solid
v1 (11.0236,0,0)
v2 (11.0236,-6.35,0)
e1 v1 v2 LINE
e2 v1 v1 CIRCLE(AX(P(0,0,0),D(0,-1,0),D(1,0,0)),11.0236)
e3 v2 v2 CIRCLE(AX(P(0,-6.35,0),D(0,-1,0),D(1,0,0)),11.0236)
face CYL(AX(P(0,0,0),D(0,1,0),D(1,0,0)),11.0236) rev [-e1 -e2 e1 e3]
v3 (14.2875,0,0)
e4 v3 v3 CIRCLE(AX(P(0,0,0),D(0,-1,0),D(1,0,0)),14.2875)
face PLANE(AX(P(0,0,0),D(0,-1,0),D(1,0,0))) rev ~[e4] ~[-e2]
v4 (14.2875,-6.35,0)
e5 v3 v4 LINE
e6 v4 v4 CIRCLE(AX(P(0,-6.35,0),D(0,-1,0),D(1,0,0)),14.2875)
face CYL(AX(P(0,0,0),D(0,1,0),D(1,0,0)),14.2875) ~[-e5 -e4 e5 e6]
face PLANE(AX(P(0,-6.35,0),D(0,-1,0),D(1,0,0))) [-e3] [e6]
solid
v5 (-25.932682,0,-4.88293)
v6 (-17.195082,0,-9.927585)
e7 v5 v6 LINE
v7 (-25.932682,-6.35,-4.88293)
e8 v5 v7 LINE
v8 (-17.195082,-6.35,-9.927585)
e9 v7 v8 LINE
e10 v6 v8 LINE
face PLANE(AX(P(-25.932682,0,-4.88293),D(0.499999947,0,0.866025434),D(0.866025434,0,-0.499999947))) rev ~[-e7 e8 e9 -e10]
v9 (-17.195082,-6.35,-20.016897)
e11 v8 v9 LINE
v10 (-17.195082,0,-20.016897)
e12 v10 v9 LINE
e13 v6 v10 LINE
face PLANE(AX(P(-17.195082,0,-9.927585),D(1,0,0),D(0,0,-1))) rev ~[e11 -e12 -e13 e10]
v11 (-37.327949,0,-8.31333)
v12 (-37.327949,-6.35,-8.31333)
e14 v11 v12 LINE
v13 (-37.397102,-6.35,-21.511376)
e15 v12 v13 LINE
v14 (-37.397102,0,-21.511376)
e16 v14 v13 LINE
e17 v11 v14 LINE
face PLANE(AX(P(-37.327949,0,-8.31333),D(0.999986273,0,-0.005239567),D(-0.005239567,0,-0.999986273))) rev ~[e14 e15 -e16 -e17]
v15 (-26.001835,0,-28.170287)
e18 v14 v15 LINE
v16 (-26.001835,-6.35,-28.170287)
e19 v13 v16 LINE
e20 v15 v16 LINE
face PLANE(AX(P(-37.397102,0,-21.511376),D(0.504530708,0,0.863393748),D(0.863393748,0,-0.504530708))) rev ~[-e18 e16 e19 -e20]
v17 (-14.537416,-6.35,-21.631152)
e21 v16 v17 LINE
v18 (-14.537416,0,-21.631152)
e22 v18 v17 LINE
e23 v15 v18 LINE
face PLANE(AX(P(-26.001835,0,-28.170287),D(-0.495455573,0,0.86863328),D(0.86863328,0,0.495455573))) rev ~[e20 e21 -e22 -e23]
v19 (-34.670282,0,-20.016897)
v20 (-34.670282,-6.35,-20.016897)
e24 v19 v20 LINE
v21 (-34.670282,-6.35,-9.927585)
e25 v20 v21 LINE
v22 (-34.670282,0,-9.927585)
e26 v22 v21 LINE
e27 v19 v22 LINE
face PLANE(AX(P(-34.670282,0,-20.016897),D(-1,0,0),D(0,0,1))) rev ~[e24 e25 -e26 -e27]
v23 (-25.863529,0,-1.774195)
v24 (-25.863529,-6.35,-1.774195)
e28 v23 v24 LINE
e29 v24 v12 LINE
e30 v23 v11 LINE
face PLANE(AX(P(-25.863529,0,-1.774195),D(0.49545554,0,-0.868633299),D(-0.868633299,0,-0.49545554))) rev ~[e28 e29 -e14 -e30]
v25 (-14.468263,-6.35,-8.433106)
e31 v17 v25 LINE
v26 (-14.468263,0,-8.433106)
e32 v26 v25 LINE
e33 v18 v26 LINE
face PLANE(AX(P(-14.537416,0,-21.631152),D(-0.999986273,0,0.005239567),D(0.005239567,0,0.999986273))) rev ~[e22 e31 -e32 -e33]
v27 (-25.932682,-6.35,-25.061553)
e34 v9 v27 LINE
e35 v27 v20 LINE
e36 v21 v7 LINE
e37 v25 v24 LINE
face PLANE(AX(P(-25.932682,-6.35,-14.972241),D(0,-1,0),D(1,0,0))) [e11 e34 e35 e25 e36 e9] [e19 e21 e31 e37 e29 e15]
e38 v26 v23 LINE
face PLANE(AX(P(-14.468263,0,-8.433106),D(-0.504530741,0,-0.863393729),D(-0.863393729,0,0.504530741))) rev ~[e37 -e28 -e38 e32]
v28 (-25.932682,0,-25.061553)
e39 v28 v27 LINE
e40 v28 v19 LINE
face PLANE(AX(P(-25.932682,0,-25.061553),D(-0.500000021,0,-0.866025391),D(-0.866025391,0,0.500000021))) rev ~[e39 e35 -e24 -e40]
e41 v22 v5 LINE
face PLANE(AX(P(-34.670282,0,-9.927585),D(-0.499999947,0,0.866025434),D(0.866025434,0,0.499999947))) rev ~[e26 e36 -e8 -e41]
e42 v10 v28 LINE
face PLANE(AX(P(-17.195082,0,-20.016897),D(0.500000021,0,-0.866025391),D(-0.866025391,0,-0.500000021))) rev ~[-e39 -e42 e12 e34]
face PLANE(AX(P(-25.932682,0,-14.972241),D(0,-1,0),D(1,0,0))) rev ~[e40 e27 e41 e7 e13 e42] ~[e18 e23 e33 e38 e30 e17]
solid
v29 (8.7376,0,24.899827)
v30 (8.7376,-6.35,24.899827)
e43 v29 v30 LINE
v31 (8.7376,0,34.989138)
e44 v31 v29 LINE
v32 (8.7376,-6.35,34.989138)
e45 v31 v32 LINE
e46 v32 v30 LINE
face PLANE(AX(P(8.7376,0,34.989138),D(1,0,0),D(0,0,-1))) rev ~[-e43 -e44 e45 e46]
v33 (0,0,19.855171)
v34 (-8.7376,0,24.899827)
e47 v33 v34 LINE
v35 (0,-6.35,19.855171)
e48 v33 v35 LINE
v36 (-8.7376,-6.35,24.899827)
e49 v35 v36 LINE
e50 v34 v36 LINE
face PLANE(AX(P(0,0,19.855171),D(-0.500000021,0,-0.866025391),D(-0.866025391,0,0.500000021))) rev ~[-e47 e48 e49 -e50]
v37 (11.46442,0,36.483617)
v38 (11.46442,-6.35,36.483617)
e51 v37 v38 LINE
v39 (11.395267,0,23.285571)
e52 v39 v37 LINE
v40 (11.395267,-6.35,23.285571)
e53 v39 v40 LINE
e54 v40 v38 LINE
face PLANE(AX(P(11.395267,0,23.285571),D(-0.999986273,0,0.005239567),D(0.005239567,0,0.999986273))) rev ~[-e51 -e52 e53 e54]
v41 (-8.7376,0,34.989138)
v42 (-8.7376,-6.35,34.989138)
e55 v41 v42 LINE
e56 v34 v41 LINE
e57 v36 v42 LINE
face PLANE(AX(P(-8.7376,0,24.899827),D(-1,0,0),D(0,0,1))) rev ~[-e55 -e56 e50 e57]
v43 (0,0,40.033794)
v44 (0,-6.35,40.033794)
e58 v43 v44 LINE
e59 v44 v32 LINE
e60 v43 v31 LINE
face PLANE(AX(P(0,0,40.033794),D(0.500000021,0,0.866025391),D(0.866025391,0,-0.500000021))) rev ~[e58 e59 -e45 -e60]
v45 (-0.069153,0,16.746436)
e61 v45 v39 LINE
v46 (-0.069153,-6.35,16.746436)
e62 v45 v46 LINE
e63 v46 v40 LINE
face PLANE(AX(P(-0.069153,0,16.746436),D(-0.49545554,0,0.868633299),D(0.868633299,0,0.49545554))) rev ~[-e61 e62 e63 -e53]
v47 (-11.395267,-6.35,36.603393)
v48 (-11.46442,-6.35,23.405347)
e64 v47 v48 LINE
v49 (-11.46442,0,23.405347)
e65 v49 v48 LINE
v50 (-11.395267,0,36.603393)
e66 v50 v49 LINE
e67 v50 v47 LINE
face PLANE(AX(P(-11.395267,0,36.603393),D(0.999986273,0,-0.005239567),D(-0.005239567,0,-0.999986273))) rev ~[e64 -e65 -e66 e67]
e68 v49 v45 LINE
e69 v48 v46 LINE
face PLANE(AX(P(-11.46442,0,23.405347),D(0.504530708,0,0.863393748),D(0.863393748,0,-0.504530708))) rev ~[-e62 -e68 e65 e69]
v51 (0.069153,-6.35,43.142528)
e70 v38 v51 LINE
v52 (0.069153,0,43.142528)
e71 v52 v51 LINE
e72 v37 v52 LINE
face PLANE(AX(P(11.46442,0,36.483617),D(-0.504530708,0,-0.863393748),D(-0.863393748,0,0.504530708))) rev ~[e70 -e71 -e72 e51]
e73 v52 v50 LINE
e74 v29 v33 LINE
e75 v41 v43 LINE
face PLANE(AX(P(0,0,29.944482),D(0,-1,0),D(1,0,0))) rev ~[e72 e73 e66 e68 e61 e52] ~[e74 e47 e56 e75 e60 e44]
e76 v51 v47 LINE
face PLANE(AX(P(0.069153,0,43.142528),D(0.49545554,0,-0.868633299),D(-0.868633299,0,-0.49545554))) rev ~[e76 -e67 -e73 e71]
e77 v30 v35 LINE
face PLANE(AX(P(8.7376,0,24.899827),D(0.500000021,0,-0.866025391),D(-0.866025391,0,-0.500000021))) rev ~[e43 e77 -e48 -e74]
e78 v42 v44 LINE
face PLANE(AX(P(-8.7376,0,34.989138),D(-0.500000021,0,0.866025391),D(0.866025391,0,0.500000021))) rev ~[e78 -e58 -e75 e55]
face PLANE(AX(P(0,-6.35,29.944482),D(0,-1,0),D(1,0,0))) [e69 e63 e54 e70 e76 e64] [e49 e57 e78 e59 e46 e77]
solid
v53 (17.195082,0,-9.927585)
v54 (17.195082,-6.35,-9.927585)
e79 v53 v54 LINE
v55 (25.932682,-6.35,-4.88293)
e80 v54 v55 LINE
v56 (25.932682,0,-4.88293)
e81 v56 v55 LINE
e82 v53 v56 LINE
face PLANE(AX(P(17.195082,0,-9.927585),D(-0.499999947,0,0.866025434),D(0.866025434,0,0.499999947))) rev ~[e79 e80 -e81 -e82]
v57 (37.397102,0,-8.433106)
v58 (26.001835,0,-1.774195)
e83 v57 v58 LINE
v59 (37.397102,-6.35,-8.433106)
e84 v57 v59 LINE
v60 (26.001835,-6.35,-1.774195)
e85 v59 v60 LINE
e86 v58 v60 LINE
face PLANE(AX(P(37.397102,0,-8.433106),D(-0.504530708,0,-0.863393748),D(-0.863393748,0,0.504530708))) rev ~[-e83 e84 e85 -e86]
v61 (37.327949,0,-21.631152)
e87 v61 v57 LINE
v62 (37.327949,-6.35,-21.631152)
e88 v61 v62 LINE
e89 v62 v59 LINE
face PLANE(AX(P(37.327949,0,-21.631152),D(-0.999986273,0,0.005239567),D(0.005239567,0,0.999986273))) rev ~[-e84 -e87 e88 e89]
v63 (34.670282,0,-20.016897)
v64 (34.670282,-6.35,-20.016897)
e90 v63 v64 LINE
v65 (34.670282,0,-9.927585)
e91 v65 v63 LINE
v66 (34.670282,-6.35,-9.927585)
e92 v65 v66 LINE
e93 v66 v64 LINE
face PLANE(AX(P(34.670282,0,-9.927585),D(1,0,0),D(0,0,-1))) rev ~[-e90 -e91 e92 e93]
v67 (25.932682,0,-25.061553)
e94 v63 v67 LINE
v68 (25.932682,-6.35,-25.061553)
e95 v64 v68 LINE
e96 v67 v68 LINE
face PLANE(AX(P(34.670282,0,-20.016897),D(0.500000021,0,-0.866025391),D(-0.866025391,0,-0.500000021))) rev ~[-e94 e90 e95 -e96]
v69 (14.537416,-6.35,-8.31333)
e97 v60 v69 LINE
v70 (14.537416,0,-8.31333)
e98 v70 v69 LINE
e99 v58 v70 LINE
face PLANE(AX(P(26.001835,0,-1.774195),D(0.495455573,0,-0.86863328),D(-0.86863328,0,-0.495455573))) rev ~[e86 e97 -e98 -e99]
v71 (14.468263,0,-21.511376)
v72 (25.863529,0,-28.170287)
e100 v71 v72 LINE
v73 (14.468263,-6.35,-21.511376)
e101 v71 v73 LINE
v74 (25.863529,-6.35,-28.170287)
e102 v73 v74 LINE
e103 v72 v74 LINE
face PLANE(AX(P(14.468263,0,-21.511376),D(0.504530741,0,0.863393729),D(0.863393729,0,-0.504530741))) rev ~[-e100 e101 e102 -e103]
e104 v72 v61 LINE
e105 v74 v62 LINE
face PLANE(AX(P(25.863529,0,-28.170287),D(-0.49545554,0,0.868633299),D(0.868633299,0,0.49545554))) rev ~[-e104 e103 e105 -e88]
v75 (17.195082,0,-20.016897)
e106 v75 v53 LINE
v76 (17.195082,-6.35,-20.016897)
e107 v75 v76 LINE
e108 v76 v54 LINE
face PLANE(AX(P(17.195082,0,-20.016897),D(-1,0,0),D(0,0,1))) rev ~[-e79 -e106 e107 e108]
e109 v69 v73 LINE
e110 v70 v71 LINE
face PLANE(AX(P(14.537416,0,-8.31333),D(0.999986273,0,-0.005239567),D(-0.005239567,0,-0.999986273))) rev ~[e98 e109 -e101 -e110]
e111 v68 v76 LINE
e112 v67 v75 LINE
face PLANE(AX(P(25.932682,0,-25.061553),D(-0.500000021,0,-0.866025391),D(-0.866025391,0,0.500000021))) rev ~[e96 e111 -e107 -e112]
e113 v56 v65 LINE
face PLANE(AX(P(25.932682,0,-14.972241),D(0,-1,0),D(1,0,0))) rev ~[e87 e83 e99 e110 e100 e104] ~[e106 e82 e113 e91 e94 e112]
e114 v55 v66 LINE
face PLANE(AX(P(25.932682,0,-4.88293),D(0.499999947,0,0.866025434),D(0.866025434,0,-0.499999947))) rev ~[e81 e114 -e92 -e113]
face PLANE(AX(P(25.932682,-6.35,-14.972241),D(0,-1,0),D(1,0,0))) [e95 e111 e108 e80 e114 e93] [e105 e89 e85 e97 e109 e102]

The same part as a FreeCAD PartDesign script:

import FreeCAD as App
import Part
import Sketcher
Q = App.Units.Quantity


def add_polygon(sketch, points):
    """Adds a closed chain of lines whose ends are joined by coincident constraints."""
    first, n = sketch.GeometryCount, len(points)
    for a, b in zip(points, points[1:] + points[:1]):
        sketch.addGeometry(Part.LineSegment(App.Vector(*a, 0), App.Vector(*b, 0)), False)
    for i in range(n):
        sketch.addConstraint(Sketcher.Constraint("Coincident", first + i, 2, first + (i + 1) % n, 1))

doc = App.newDocument("Part")
body = doc.addObject("PartDesign::Body", "Body")
body.AllowCompound = True

# Sketch on XZ plane
sketch1 = body.newObject("Sketcher::SketchObject", "Sketch")
sketch1.AttachmentSupport = (doc.getObject("XZ_Plane"), [""])
sketch1.MapMode = "FlatFace"
add_polygon(sketch1, [(0.069153, 43.142528), (-11.395267, 36.603393), (-11.46442, 23.405347), (-0.069153, 16.746436), (11.395267, 23.285571), (11.46442, 36.483617)])  # lines 0-5
add_polygon(sketch1, [(8.7376, 24.899827), (0, 19.855171), (-8.7376, 24.899827), (-8.7376, 34.989138), (0, 40.033794), (8.7376, 34.989138)])  # lines 6-11
add_polygon(sketch1, [(25.863529, -28.170287), (37.327949, -21.631152), (37.397102, -8.433106), (26.001835, -1.774195), (14.537416, -8.31333), (14.468263, -21.511376)])  # lines 12-17
add_polygon(sketch1, [(25.932682, -25.061553), (17.195082, -20.016897), (17.195082, -9.927585), (25.932682, -4.88293), (34.670282, -9.927585), (34.670282, -20.016897)])  # lines 18-23
add_polygon(sketch1, [(-37.327949, -8.31333), (-37.397102, -21.511376), (-26.001835, -28.170287), (-14.537416, -21.631152), (-14.468263, -8.433106), (-25.863529, -1.774195)])  # lines 24-29
add_polygon(sketch1, [(-34.670282, -9.927585), (-25.932682, -4.88293), (-17.195082, -9.927585), (-17.195082, -20.016897), (-25.932682, -25.061553), (-34.670282, -20.016897)])  # lines 30-35
sketch1.addGeometry(Part.Circle(App.Vector(0, 0, 0), App.Vector(0, 0, 1), 14.2875), False)  # 36
sketch1.addGeometry(Part.Circle(App.Vector(0, 0, 0), App.Vector(0, 0, 1), 11.0236), False)  # 37
sketch1.addConstraint(Sketcher.Constraint("Vertical", 8))
sketch1.addConstraint(Sketcher.Constraint("Vertical", 11))
sketch1.addConstraint(Sketcher.Constraint("Vertical", 19))
sketch1.addConstraint(Sketcher.Constraint("Vertical", 22))
sketch1.addConstraint(Sketcher.Constraint("Vertical", 32))
sketch1.addConstraint(Sketcher.Constraint("Vertical", 35))
sketch1.addConstraint(Sketcher.Constraint("Coincident", 36, 3, -1, 1))
sketch1.addConstraint(Sketcher.Constraint("Coincident", 37, 3, -1, 1))
sketch1.addConstraint(Sketcher.Constraint("Symmetric", 8, 2, 10, 2, -2))
sketch1.addConstraint(Sketcher.Constraint("Symmetric", 20, 2, 30, 2, -2))
sketch1.addConstraint(Sketcher.Constraint("Symmetric", 19, 2, 31, 2, -2))
sketch1.addConstraint(Sketcher.Constraint("Symmetric", 23, 2, 33, 2, -2))
sketch1.addConstraint(Sketcher.Constraint("Symmetric", 22, 2, 34, 2, -2))
sketch1.addConstraint(Sketcher.Constraint("PointOnObject", 6, 2, -2))
sketch1.addConstraint(Sketcher.Constraint("PointOnObject", 9, 2, -2))
sketch1.addConstraint(Sketcher.Constraint("Parallel", 0, 3))
sketch1.addConstraint(Sketcher.Constraint("Parallel", 1, 4))
sketch1.addConstraint(Sketcher.Constraint("Parallel", 2, 5))
sketch1.addConstraint(Sketcher.Constraint("Parallel", 6, 9))
sketch1.addConstraint(Sketcher.Constraint("Parallel", 7, 10))
sketch1.addConstraint(Sketcher.Constraint("Parallel", 3, 12))
sketch1.addConstraint(Sketcher.Constraint("Parallel", 4, 13))
sketch1.addConstraint(Sketcher.Constraint("Parallel", 5, 14))
sketch1.addConstraint(Sketcher.Constraint("Parallel", 12, 15))
sketch1.addConstraint(Sketcher.Constraint("Parallel", 13, 16))
sketch1.addConstraint(Sketcher.Constraint("Parallel", 14, 17))
sketch1.addConstraint(Sketcher.Constraint("Parallel", 10, 18))
sketch1.addConstraint(Sketcher.Constraint("Parallel", 9, 20))
sketch1.addConstraint(Sketcher.Constraint("Parallel", 18, 21))
sketch1.addConstraint(Sketcher.Constraint("Parallel", 20, 23))
sketch1.addConstraint(Sketcher.Constraint("Parallel", 16, 24))
sketch1.addConstraint(Sketcher.Constraint("Parallel", 17, 25))
sketch1.addConstraint(Sketcher.Constraint("Parallel", 15, 26))
sketch1.addConstraint(Sketcher.Constraint("Parallel", 24, 27))
sketch1.addConstraint(Sketcher.Constraint("Parallel", 25, 28))
sketch1.addConstraint(Sketcher.Constraint("Parallel", 26, 29))
sketch1.addConstraint(Sketcher.Constraint("Parallel", 23, 30))
sketch1.addConstraint(Sketcher.Constraint("Parallel", 30, 33))
sketch1.addConstraint(Sketcher.Constraint("Horizontal", 19, 2, 21, 2))
sketch1.addConstraint(Sketcher.Constraint("Horizontal", 18, 2, 22, 2))
sketch1.addConstraint(Sketcher.Constraint("Horizontal", 16, 2, 24, 2))
sketch1.addConstraint(Sketcher.Constraint("Horizontal", 17, 2, 25, 2))
sketch1.addConstraint(Sketcher.Constraint("Horizontal", 12, 2, 26, 2))
sketch1.addConstraint(Sketcher.Constraint("Horizontal", 13, 2, 27, 2))
sketch1.addConstraint(Sketcher.Constraint("Horizontal", 14, 2, 28, 2))
sketch1.addConstraint(Sketcher.Constraint("Equal", 11, 19))
sketch1.addConstraint(Sketcher.Constraint("Equal", 0, 1))
sketch1.addConstraint(Sketcher.Constraint("Equal", 1, 2))
sketch1.addConstraint(Sketcher.Constraint("Equal", 2, 3))
sketch1.addConstraint(Sketcher.Constraint("Equal", 5, 12))
sketch1.addConstraint(Sketcher.Constraint("Equal", 12, 13))
sketch1.addConstraint(Sketcher.Constraint("Equal", 13, 14))
sketch1.addConstraint(Sketcher.Constraint("Equal", 14, 15))
sketch1.addConstraint(Sketcher.Constraint("Equal", 10, 18))
sketch1.addConstraint(Sketcher.Constraint("Diameter", 36, Q("1.125 in")))
sketch1.addConstraint(Sketcher.Constraint("Diameter", 37, Q("0.868 in")))
sketch1.addConstraint(Sketcher.Constraint("Angle", 6, Q("-149.999999 deg")))
sketch1.addConstraint(Sketcher.Constraint("DistanceX", 7, 2, -1, 1, Q("0.344 in")))
sketch1.addConstraint(Sketcher.Constraint("DistanceY", 8, 1, 8, 2, Q("10.089311 mm")))
sketch1.addConstraint(Sketcher.Constraint("DistanceX", -1, 1, 13, 2, Q("37.397102 mm")))
sketch1.addConstraint(Sketcher.Constraint("DistanceX", 24, 2, -1, 1, Q("37.397102 mm")))
sketch1.addConstraint(Sketcher.Constraint("DistanceY", 6, 2, 3, 2, Q("3.4304 mm")))
sketch1.addConstraint(Sketcher.Constraint("DistanceY", 0, 2, 9, 2, Q("3.430401 mm")))
sketch1.addConstraint(Sketcher.Constraint("DistanceX", 2, 2, 12, 2, Q("37.397102 mm")))
sketch1.addConstraint(Sketcher.Constraint("DistanceY", 15, 2, 20, 2, Q("3.4304 mm")))
sketch1.addConstraint(Sketcher.Constraint("DistanceX", 1, 2, -1, 1, Q("11.46442 mm")))
sketch1.addConstraint(Sketcher.Constraint("DistanceY", -1, 1, 3, 2, Q("23.285571 mm")))
sketch1.addConstraint(Sketcher.Constraint("DistanceX", -1, 1, 4, 2, Q("11.46442 mm")))
sketch1.addConstraint(Sketcher.Constraint("DistanceX", -1, 1, 12, 2, Q("37.327949 mm")))
sketch1.addConstraint(Sketcher.Constraint("DistanceY", 12, 2, -1, 1, Q("21.631152 mm")))
sketch1.addConstraint(Sketcher.Constraint("DistanceX", -1, 1, 18, 2, Q("17.195082 mm")))
pad1 = body.newObject("PartDesign::Pad", "Pad")
pad1.Profile = sketch1
pad1.Length = Q("0.25 in")

doc.recompute()
